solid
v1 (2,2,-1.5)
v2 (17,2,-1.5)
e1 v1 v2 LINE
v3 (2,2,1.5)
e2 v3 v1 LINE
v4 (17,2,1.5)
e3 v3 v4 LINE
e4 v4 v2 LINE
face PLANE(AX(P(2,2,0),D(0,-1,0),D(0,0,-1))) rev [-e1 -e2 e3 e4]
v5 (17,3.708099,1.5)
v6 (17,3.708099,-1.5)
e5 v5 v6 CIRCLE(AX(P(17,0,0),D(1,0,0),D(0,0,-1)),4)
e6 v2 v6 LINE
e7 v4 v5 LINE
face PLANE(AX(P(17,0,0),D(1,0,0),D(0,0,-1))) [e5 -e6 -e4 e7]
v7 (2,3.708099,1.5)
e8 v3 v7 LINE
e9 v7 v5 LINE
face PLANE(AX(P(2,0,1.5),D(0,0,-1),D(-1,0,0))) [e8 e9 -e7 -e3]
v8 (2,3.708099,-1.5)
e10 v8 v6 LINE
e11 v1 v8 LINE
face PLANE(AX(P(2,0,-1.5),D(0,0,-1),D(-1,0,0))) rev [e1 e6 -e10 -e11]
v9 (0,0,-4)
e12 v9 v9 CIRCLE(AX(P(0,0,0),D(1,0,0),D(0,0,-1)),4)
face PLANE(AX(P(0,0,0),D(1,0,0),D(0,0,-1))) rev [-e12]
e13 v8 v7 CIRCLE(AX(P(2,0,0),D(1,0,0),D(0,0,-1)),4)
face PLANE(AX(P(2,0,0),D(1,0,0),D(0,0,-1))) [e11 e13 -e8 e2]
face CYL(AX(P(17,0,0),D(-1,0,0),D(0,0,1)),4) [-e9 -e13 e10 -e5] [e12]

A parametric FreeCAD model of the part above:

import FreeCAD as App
import Part
import Sketcher
from FreeCAD import Vector

doc = App.newDocument("Part")
body = doc.addObject("PartDesign::Body", "Body")

# Sketch on YZ plane
sketch1 = body.newObject("Sketcher::SketchObject", "Sketch")
sketch1.AttachmentSupport = (doc.getObject("YZ_Plane"), [""])
sketch1.MapMode = "FlatFace"
sketch1.addGeometry(Part.Circle(Vector(0, 0, 0), Vector(0, 0, 1), 4), False)
sketch1.addConstraint([
    Sketcher.Constraint("Coincident", 0, 3, -1, 1),
    Sketcher.Constraint("Diameter", 0, 8.0),
])
pad1 = body.newObject("PartDesign::Pad", "Pad")
pad1.Profile = sketch1
pad1.Length = 17

# Sketch on YZ plane
sketch2 = body.newObject("Sketcher::SketchObject", "Sketch001")
sketch2.AttachmentSupport = (doc.getObject("YZ_Plane"), [""])
sketch2.MapMode = "FlatFace"
sketch2.AttachmentOffset = App.Placement(Vector(0, 0, 17), App.Rotation())
sketch2.addGeometry([
    Part.LineSegment(Vector(2, 1.5, 0), Vector(2, -1.5, 0)),
    Part.LineSegment(Vector(2, -1.5, 0), Vector(90.5, -1.5, 0)),
    Part.LineSegment(Vector(90.5, -1.5, 0), Vector(90.5, 1.5, 0)),
    Part.LineSegment(Vector(90.5, 1.5, 0), Vector(2, 1.5, 0)),
], False)
sketch2.addConstraint([
    Sketcher.Constraint("Coincident", 0, 2, 1, 1),
    Sketcher.Constraint("Coincident", 1, 2, 2, 1),
    Sketcher.Constraint("Coincident", 2, 2, 3, 1),
    Sketcher.Constraint("Coincident", 3, 2, 0, 1),
    Sketcher.Constraint("Vertical", 0),
    Sketcher.Constraint("Horizontal", 1),
    Sketcher.Constraint("Vertical", 2),
    Sketcher.Constraint("Horizontal", 3),
    Sketcher.Constraint("DistanceY", 0, 2, 0, 1, 3.0),
    Sketcher.Constraint("DistanceX", -1, 1, 0, 2, 2.0),
    Sketcher.Constraint("DistanceY", 0, 2, -1, 1, 1.5),
    Sketcher.Constraint("DistanceX", 1, 1, 1, 2, 88.522997),
])
pocket1 = body.newObject("PartDesign::Pocket", "Pocket")
pocket1.Profile = sketch2
pocket1.Length = 15

doc.recompute()
